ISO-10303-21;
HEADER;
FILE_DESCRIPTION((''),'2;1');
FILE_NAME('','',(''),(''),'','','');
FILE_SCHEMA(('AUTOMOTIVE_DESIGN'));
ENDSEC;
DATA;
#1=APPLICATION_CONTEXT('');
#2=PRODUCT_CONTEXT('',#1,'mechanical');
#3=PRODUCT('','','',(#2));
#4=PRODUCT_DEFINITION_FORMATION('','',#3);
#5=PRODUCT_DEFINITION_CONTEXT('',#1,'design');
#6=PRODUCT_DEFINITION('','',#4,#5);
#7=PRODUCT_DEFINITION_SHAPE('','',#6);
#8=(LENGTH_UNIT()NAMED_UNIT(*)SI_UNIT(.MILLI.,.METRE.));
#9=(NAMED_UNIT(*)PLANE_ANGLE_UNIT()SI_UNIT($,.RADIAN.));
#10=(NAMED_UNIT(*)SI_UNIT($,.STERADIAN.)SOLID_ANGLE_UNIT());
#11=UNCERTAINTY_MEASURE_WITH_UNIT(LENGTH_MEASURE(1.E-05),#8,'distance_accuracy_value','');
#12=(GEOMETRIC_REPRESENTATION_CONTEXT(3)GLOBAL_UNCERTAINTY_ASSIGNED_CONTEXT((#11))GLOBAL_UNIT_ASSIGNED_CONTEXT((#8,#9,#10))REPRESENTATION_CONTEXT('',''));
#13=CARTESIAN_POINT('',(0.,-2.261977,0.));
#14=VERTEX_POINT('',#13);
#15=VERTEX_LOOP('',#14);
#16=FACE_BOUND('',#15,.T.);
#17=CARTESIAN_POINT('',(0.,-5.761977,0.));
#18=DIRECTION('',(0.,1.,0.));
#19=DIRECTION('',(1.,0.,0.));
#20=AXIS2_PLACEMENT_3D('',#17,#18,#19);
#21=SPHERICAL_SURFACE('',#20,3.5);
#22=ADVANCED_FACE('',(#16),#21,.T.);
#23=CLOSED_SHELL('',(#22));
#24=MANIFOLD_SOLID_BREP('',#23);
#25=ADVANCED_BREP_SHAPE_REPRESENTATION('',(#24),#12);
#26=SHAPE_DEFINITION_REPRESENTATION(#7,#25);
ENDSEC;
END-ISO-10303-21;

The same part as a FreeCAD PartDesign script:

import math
import FreeCAD as App
import Part
import Sketcher
Q = App.Units.Quantity

doc = App.newDocument("Part")
body = doc.addObject("PartDesign::Body", "Body")

# Sketch on XY plane
sketch1 = body.newObject("Sketcher::SketchObject", "Sketch")
sketch1.AttachmentSupport = (doc.getObject("XY_Plane"), [""])
sketch1.MapMode = "FlatFace"
sketch1.addGeometry([
    Part.LineSegment(App.Vector(0, -2.261977, 0), App.Vector(0, -9.261977, 0)),
    Part.ArcOfCircle(Part.Circle(App.Vector(0, -5.761977, 0), App.Vector(0, 0, 1), 3.5), math.radians(-90), math.radians(90)),
], False)
sketch1.addConstraint([
    Sketcher.Constraint("Coincident", 0, 1, 1, 2),
    Sketcher.Constraint("Coincident", 1, 1, 0, 2),
    Sketcher.Constraint("Vertical", 0),
    Sketcher.Constraint("PointOnObject", 1, 3, -2),
    Sketcher.Constraint("PointOnObject", 0, 1, -2),
    Sketcher.Constraint("Radius", 1, Q("3.5 mm")),
    Sketcher.Constraint("DistanceY", 1, 3, -1, 1, Q("5.761977 mm")),
])
revolution = body.newObject("PartDesign::Revolution", "Revolution")
revolution.Profile = sketch1
revolution.ReferenceAxis = (sketch1, ["V_Axis"])
revolution.Angle = 360

doc.recompute()
